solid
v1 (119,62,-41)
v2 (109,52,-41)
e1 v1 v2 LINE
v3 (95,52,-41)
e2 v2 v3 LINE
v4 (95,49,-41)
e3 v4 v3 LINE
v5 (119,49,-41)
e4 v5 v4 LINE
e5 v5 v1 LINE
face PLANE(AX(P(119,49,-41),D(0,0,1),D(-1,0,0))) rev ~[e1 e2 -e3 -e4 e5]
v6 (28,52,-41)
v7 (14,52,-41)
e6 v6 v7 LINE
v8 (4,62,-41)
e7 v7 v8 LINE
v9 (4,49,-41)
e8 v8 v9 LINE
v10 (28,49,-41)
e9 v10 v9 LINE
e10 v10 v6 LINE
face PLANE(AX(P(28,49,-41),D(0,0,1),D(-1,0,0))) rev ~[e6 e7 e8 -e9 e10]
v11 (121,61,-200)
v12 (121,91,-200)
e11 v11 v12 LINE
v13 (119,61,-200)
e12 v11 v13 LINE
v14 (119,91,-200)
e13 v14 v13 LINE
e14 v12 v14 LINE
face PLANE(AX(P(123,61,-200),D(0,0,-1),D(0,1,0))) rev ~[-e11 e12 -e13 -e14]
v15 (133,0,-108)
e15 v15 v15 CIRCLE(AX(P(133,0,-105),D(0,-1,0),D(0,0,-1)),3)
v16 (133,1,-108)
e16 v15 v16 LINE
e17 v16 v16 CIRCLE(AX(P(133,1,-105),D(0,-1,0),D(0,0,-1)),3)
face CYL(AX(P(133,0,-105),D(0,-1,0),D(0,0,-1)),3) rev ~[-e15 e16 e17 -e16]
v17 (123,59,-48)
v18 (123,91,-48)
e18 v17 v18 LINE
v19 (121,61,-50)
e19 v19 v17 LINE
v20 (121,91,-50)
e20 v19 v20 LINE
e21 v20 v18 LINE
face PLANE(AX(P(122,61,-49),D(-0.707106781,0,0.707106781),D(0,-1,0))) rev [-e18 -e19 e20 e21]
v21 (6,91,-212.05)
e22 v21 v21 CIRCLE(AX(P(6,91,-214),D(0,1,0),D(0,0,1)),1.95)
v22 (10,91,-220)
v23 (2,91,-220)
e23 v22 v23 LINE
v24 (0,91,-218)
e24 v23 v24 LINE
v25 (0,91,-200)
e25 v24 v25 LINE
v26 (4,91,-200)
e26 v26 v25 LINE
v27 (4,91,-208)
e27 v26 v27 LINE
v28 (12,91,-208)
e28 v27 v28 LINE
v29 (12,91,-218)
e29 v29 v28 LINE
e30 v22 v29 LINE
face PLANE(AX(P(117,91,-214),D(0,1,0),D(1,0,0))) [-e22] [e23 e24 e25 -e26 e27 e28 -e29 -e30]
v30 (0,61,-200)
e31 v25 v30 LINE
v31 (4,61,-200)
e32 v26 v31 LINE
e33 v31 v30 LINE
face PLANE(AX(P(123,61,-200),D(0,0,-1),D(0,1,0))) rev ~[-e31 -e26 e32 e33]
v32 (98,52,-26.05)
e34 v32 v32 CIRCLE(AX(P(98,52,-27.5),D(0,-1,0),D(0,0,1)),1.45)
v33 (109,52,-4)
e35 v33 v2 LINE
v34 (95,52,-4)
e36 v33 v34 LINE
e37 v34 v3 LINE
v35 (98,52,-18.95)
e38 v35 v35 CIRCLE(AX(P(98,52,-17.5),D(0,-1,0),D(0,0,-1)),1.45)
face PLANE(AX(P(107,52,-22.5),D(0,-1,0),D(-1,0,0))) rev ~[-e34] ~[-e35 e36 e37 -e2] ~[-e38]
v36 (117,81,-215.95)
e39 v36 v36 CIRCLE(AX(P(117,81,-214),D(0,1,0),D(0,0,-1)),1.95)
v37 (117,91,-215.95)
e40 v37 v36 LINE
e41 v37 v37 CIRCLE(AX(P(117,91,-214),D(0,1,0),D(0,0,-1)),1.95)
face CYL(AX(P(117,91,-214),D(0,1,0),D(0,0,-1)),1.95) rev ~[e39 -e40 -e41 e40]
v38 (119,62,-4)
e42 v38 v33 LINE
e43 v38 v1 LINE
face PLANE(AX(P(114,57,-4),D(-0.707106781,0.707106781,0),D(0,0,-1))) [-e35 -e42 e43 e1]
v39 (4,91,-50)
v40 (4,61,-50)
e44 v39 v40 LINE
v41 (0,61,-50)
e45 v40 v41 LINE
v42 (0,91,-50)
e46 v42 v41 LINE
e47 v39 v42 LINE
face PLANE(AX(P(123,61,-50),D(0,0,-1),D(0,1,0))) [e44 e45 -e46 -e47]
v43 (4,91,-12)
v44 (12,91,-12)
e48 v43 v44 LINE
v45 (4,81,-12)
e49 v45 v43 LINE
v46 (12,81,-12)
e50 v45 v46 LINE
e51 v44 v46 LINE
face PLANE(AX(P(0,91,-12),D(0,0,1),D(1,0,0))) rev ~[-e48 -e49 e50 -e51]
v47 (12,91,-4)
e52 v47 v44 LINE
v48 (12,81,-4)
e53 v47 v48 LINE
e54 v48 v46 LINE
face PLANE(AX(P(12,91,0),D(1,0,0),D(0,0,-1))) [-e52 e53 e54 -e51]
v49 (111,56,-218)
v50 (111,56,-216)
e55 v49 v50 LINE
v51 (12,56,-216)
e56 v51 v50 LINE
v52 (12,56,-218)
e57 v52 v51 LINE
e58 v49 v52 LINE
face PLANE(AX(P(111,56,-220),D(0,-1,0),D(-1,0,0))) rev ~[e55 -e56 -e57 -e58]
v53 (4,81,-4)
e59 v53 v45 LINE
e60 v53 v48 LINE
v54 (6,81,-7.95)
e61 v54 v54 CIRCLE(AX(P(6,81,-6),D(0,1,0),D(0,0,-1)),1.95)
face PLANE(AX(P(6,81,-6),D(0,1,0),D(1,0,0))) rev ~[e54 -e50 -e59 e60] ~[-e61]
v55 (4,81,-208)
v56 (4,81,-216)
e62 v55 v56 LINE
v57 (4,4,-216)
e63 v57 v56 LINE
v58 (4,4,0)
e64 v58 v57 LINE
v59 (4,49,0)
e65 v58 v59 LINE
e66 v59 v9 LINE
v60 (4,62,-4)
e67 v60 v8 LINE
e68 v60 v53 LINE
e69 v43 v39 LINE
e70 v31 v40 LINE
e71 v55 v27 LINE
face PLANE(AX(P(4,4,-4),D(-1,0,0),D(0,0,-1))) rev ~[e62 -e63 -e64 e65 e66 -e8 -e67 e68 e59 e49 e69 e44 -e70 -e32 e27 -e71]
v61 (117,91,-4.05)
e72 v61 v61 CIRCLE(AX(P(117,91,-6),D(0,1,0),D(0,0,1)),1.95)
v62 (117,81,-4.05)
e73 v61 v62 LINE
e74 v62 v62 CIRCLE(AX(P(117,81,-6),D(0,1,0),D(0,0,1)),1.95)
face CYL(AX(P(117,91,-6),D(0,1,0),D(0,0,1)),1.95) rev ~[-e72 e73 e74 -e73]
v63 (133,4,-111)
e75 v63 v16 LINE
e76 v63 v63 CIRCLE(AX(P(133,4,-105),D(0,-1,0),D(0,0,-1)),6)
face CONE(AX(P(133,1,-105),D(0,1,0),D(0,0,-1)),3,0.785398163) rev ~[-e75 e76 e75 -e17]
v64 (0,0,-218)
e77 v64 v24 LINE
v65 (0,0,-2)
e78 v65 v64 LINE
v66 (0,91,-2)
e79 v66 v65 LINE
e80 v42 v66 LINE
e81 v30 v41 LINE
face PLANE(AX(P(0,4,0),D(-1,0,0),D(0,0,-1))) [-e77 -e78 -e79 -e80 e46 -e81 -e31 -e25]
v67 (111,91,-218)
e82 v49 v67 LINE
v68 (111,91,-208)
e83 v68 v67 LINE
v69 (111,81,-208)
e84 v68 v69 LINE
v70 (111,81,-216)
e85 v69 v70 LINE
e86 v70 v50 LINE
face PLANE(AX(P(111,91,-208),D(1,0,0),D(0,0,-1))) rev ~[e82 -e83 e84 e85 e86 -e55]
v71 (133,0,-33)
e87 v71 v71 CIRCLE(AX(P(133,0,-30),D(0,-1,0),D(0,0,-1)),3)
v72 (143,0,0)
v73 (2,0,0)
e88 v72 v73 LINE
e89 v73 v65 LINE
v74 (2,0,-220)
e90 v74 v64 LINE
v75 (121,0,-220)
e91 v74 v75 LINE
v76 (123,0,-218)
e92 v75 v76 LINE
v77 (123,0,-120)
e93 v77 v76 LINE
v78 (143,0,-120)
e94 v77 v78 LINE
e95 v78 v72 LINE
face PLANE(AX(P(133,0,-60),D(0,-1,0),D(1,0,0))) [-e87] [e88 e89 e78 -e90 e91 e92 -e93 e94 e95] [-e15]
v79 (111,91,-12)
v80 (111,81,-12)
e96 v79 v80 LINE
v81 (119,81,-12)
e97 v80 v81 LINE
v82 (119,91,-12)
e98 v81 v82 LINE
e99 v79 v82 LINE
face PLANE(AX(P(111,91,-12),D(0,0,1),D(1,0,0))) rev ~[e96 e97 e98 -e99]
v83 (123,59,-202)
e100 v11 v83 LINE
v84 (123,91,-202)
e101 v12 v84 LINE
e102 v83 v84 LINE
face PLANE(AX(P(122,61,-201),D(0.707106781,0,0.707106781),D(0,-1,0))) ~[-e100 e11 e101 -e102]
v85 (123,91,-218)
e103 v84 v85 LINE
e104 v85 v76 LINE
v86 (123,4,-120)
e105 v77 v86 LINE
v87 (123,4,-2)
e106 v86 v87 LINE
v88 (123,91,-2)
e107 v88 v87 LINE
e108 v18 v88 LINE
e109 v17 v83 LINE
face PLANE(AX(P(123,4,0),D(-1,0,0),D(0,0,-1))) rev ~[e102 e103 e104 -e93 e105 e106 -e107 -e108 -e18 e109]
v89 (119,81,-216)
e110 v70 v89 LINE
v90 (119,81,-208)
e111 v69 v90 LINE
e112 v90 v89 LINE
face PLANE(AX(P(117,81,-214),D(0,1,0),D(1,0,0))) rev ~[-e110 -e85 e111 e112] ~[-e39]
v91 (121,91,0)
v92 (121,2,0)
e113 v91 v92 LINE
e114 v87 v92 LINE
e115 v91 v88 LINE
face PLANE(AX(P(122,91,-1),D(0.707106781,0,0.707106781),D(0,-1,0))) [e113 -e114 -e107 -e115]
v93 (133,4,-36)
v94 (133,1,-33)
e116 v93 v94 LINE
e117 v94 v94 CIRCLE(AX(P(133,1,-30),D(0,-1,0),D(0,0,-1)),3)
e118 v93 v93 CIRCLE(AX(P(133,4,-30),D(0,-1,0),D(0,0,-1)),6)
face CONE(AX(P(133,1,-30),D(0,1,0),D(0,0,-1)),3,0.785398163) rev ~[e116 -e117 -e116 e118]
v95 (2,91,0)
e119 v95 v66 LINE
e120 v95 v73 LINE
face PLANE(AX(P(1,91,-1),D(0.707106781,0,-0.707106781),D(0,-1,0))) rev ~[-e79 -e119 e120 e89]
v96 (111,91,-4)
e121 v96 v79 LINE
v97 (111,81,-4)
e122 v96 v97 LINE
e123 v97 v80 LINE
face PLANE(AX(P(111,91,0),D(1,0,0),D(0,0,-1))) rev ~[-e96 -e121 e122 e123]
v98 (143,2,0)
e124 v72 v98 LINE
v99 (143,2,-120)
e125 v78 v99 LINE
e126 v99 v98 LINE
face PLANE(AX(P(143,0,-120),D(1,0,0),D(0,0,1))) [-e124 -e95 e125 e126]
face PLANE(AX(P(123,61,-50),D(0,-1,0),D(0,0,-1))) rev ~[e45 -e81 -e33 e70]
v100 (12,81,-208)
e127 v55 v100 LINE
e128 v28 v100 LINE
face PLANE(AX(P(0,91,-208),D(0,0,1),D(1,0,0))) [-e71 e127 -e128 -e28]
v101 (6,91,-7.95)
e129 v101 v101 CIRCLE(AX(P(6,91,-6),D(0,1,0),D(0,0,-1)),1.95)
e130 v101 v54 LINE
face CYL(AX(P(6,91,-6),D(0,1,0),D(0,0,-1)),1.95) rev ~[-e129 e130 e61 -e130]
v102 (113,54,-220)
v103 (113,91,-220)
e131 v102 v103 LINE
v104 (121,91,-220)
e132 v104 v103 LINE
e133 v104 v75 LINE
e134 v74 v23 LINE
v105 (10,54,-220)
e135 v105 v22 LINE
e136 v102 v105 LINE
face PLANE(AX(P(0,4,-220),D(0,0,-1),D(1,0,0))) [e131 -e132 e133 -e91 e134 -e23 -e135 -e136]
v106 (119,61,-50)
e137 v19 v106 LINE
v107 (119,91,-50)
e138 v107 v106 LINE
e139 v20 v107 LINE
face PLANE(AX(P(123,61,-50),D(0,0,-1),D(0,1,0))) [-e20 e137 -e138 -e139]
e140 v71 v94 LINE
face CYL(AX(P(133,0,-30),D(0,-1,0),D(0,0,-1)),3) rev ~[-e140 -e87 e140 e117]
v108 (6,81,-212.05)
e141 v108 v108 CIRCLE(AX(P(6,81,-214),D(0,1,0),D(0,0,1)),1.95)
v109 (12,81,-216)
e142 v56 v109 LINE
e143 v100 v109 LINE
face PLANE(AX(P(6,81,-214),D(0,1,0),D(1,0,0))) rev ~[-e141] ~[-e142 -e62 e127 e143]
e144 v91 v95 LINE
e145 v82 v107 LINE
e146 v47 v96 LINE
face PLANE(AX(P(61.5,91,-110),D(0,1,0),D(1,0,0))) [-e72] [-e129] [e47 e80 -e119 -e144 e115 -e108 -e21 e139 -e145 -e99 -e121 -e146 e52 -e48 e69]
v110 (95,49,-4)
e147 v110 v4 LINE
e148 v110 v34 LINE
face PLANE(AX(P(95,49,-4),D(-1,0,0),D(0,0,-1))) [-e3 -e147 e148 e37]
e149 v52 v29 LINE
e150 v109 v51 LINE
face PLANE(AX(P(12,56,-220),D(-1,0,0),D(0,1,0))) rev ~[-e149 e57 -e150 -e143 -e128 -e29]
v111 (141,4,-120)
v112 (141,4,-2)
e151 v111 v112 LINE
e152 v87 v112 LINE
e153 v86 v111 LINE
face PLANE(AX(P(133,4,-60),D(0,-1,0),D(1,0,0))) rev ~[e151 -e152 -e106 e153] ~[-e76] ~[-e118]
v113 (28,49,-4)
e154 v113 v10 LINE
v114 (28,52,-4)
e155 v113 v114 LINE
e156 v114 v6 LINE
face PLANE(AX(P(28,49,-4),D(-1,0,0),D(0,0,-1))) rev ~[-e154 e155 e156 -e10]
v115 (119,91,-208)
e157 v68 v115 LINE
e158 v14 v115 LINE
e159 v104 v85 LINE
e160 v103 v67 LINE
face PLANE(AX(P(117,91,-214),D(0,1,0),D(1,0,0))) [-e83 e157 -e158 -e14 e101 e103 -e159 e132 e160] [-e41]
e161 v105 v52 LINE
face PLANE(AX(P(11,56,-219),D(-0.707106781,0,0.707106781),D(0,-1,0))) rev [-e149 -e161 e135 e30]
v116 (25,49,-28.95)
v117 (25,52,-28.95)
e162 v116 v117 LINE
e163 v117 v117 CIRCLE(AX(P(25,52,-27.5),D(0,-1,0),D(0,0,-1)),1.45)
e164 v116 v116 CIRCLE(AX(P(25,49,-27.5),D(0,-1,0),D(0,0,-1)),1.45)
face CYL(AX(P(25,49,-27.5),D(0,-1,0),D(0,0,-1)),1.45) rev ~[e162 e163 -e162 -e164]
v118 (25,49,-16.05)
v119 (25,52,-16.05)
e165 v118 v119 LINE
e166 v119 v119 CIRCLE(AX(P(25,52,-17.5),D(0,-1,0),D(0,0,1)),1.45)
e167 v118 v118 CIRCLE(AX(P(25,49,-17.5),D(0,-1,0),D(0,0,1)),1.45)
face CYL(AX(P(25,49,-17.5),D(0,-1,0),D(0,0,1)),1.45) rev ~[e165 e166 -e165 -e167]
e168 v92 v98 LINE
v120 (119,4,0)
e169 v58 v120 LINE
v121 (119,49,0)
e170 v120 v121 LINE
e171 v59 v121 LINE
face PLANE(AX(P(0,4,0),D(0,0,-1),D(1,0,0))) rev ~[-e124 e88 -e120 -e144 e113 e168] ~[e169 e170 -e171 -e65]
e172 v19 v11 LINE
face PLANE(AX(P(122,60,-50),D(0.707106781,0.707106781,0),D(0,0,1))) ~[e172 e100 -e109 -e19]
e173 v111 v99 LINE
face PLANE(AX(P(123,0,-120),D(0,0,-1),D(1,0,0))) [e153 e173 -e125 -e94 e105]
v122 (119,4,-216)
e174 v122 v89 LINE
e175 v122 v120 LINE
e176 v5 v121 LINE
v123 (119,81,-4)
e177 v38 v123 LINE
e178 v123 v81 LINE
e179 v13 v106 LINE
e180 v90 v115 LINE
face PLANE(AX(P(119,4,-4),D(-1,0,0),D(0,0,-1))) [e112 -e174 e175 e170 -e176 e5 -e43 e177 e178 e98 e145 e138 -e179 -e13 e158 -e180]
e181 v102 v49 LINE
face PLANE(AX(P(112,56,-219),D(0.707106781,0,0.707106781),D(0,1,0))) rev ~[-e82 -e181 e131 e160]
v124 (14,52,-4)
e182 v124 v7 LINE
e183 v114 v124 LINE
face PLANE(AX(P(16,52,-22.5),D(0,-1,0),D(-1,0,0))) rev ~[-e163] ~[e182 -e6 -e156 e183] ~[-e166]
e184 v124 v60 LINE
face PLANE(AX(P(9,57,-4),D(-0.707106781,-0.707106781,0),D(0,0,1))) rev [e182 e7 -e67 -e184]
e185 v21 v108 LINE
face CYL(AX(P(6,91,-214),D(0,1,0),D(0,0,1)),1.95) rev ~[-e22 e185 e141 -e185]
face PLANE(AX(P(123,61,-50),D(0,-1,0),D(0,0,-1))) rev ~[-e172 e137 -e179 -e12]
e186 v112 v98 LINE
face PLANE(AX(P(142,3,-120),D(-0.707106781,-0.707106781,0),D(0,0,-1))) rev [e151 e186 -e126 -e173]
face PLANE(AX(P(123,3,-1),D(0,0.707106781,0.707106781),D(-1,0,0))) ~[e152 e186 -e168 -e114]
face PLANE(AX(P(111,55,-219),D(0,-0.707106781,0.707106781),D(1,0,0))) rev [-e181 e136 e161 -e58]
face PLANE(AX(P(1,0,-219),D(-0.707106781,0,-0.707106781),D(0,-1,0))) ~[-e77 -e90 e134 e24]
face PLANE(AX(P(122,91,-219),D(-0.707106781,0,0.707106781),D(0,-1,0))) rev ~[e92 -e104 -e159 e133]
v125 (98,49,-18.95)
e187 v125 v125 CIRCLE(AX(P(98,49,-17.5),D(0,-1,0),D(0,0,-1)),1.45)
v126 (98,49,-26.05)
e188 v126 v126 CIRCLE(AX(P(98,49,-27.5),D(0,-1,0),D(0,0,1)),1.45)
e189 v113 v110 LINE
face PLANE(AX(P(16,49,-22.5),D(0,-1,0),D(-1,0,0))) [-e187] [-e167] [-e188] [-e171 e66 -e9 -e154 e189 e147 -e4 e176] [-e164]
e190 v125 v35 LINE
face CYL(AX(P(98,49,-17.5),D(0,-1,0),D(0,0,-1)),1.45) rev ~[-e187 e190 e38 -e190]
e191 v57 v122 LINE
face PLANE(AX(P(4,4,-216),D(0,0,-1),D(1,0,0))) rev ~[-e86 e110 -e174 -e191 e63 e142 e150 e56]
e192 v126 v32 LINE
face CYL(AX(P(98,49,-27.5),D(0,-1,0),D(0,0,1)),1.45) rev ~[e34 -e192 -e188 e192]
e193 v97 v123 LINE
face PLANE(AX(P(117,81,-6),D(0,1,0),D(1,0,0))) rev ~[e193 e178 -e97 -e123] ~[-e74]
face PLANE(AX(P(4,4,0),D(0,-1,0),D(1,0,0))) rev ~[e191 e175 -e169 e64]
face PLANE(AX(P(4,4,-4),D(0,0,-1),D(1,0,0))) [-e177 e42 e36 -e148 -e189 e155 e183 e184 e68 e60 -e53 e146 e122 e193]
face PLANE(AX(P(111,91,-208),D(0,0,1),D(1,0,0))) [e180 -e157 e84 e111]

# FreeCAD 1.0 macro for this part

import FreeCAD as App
import Part
import Sketcher

V = App.Vector
Q = App.Units.Quantity


def edges_at(feature, points):
    """Names of the edges that pass closest to the given points."""
    edges = feature.Shape.Edges
    near = lambda p: min(range(len(edges)), key=lambda i: edges[i].distToShape(Part.Vertex(*p))[0])
    return sorted({f"Edge{near(p) + 1}" for p in points})

doc = App.newDocument("Part")
body = doc.addObject("PartDesign::Body", "Body")

# Sketch on XZ plane
sketch1 = doc.addObject("Sketcher::SketchObject", "Sketch")
body.addObject(sketch1)
sketch1.AttachmentSupport = (doc.XZ_Plane, [""])
sketch1.MapMode = "FlatFace"
sketch1.addGeometry([
    Part.LineSegment(V(0, -220, 0), V(0, 0, 0)),
    Part.LineSegment(V(0, 0, 0), V(123, 0, 0)),
    Part.LineSegment(V(123, 0, 0), V(123, -220, 0)),
    Part.LineSegment(V(123, -220, 0), V(0, -220, 0)),
], False)
sketch1.addConstraint([
    Sketcher.Constraint("Coincident", 0, 2, 1, 1),
    Sketcher.Constraint("Coincident", 1, 2, 2, 1),
    Sketcher.Constraint("Coincident", 2, 2, 3, 1),
    Sketcher.Constraint("Coincident", 3, 2, 0, 1),
    Sketcher.Constraint("Vertical", 0),
    Sketcher.Constraint("Horizontal", 1),
    Sketcher.Constraint("Vertical", 2),
    Sketcher.Constraint("Horizontal", 3),
    Sketcher.Constraint("Coincident", 0, 2, -1, 1),
    Sketcher.Constraint("DistanceX", 1, 1, 1, 2, Q("123 mm")),
    Sketcher.Constraint("DistanceY", 0, 1, 0, 2, Q("220 mm")),
])
pad1 = doc.addObject("PartDesign::Pad", "Pad")
body.addObject(pad1)
pad1.Profile = sketch1
pad1.Length = 4
pad1.Reversed = True

# Sketch on XZ plane
sketch2 = doc.addObject("Sketcher::SketchObject", "Sketch001")
body.addObject(sketch2)
sketch2.AttachmentSupport = (doc.XZ_Plane, [""])
sketch2.MapMode = "FlatFace"
sketch2.AttachmentOffset = App.Placement(V(0, 0, -4), App.Rotation())
sketch2.addGeometry([
    Part.LineSegment(V(0, -220, 0), V(0, 0, 0)),  # 0
    Part.LineSegment(V(0, 0, 0), V(123, 0, 0)),  # 1
    Part.LineSegment(V(123, 0, 0), V(123, -220, 0)),  # 2
    Part.LineSegment(V(123, -220, 0), V(0, -220, 0)),  # 3
    Part.LineSegment(V(119, -4, 0), V(4, -4, 0)),  # 4
    Part.LineSegment(V(4, -4, 0), V(4, -216, 0)),  # 5
    Part.LineSegment(V(4, -216, 0), V(119, -216, 0)),  # 6
    Part.LineSegment(V(119, -216, 0), V(119, -4, 0)),  # 7
], False)
sketch2.addConstraint([
    Sketcher.Constraint("Coincident", 0, 2, 1, 1),
    Sketcher.Constraint("Coincident", 1, 2, 2, 1),
    Sketcher.Constraint("Coincident", 2, 2, 3, 1),
    Sketcher.Constraint("Coincident", 3, 2, 0, 1),
    Sketcher.Constraint("Coincident", 4, 2, 5, 1),
    Sketcher.Constraint("Coincident", 5, 2, 6, 1),
    Sketcher.Constraint("Coincident", 6, 2, 7, 1),
    Sketcher.Constraint("Coincident", 7, 2, 4, 1),
    Sketcher.Constraint("Vertical", 0),
    Sketcher.Constraint("Horizontal", 1),
    Sketcher.Constraint("Vertical", 2),
    Sketcher.Constraint("Horizontal", 3),
    Sketcher.Constraint("Horizontal", 4),
    Sketcher.Constraint("Vertical", 5),
    Sketcher.Constraint("Horizontal", 6),
    Sketcher.Constraint("Vertical", 7),
    Sketcher.Constraint("Coincident", 0, 2, -1, 1),
    Sketcher.Constraint("DistanceX", 1, 1, 1, 2, Q("123 mm")),
    Sketcher.Constraint("DistanceX", 4, 2, 4, 1, Q("115 mm")),
    Sketcher.Constraint("DistanceY", 0, 1, 0, 2, Q("220 mm")),
    Sketcher.Constraint("DistanceY", 5, 2, 5, 1, Q("212 mm")),
    Sketcher.Constraint("DistanceX", -1, 1, 4, 2, Q("4 mm")),
    Sketcher.Constraint("DistanceY", 4, 2, -1, 1, Q("4 mm")),
])
pad2 = doc.addObject("PartDesign::Pad", "Pad001")
body.addObject(pad2)
pad2.Profile = sketch2
pad2.Length = 87
pad2.Reversed = True

# Sketch on XY plane
sketch3 = doc.addObject("Sketcher::SketchObject", "Sketch002")
body.addObject(sketch3)
sketch3.AttachmentSupport = (doc.XY_Plane, [""])
sketch3.MapMode = "FlatFace"
sketch3.addGeometry([
    Part.LineSegment(V(4, 49, 0), V(4, 4, 0)),
    Part.LineSegment(V(4, 4, 0), V(119, 4, 0)),
    Part.LineSegment(V(119, 4, 0), V(119, 49, 0)),
    Part.LineSegment(V(119, 49, 0), V(4, 49, 0)),
], False)
sketch3.addConstraint([
    Sketcher.Constraint("Coincident", 0, 2, 1, 1),
    Sketcher.Constraint("Coincident", 1, 2, 2, 1),
    Sketcher.Constraint("Coincident", 2, 2, 3, 1),
    Sketcher.Constraint("Coincident", 3, 2, 0, 1),
    Sketcher.Constraint("Vertical", 0),
    Sketcher.Constraint("Horizontal", 1),
    Sketcher.Constraint("Vertical", 2),
    Sketcher.Constraint("Horizontal", 3),
    Sketcher.Constraint("DistanceX", 1, 1, 1, 2, Q("115 mm")),
    Sketcher.Constraint("DistanceY", 0, 2, 0, 1, Q("45 mm")),
    Sketcher.Constraint("DistanceX", -1, 1, 0, 2, Q("4 mm")),
    Sketcher.Constraint("DistanceY", -1, 1, 0, 2, Q("4 mm")),
])
pocket1 = doc.addObject("PartDesign::Pocket", "Pocket")
body.addObject(pocket1)
pocket1.Profile = sketch3
pocket1.Type = "UpToFirst"

# Sketch on YZ plane
sketch4 = doc.addObject("Sketcher::SketchObject", "Sketch003")
body.addObject(sketch4)
sketch4.AttachmentSupport = (doc.YZ_Plane, [""])
sketch4.MapMode = "FlatFace"
sketch4.AttachmentOffset = App.Placement(V(0, 0, 123), App.Rotation())
sketch4.addGeometry([
    Part.LineSegment(V(91, -50, 0), V(61, -50, 0)),
    Part.LineSegment(V(61, -50, 0), V(61, -200, 0)),
    Part.LineSegment(V(61, -200, 0), V(91, -200, 0)),
    Part.LineSegment(V(91, -200, 0), V(91, -50, 0)),
], False)
sketch4.addConstraint([
    Sketcher.Constraint("Coincident", 0, 2, 1, 1),
    Sketcher.Constraint("Coincident", 1, 2, 2, 1),
    Sketcher.Constraint("Coincident", 2, 2, 3, 1),
    Sketcher.Constraint("Coincident", 3, 2, 0, 1),
    Sketcher.Constraint("Horizontal", 0),
    Sketcher.Constraint("Vertical", 1),
    Sketcher.Constraint("Horizontal", 2),
    Sketcher.Constraint("Vertical", 3),
    Sketcher.Constraint("DistanceX", 0, 2, 0, 1, Q("30 mm")),
    Sketcher.Constraint("DistanceY", 1, 2, 1, 1, Q("150 mm")),
    Sketcher.Constraint("DistanceX", -1, 1, 0, 2, Q("61 mm")),
    Sketcher.Constraint("DistanceY", 0, 2, -1, 1, Q("50 mm")),
])
pocket2 = doc.addObject("PartDesign::Pocket", "Pocket001")
body.addObject(pocket2)
pocket2.Profile = sketch4
pocket2.Type = "ThroughAll"

# Sketch on XZ plane
sketch5 = doc.addObject("Sketcher::SketchObject", "Sketch004")
body.addObject(sketch5)
sketch5.AttachmentSupport = (doc.XZ_Plane, [""])
sketch5.MapMode = "FlatFace"
sketch5.AttachmentOffset = App.Placement(V(0, 0, -49), App.Rotation())
sketch5.addGeometry([
    Part.LineSegment(V(28, -41, 0), V(28, -4, 0)),  # 0
    Part.LineSegment(V(28, -4, 0), V(4, -4, 0)),  # 1
    Part.LineSegment(V(4, -4, 0), V(4, -41, 0)),  # 2
    Part.LineSegment(V(4, -41, 0), V(28, -41, 0)),  # 3
    Part.Circle(V(25, -17.5, 0), V(0, 0, 1), 1.4),  # 4
    Part.Circle(V(25, -27.5, 0), V(0, 0, 1), 1.4),  # 5
    Part.LineSegment(V(119, -41, 0), V(119, -4, 0)),  # 6
    Part.LineSegment(V(119, -4, 0), V(95, -4, 0)),  # 7
    Part.LineSegment(V(95, -4, 0), V(95, -41, 0)),  # 8
    Part.LineSegment(V(95, -41, 0), V(119, -41, 0)),  # 9
    Part.Circle(V(98, -17.5, 0), V(0, 0, 1), 1.4),  # 10
    Part.Circle(V(98, -27.5, 0), V(0, 0, 1), 1.4),  # 11
], False)
sketch5.addConstraint([
    Sketcher.Constraint("Coincident", 0, 2, 1, 1),
    Sketcher.Constraint("Coincident", 1, 2, 2, 1),
    Sketcher.Constraint("Coincident", 2, 2, 3, 1),
    Sketcher.Constraint("Coincident", 3, 2, 0, 1),
    Sketcher.Constraint("Coincident", 6, 2, 7, 1),
    Sketcher.Constraint("Coincident", 7, 2, 8, 1),
    Sketcher.Constraint("Coincident", 8, 2, 9, 1),
    Sketcher.Constraint("Coincident", 9, 2, 6, 1),
    Sketcher.Constraint("Vertical", 0),
    Sketcher.Constraint("Horizontal", 1),
    Sketcher.Constraint("Vertical", 2),
    Sketcher.Constraint("Horizontal", 3),
    Sketcher.Constraint("Vertical", 6),
    Sketcher.Constraint("Horizontal", 7),
    Sketcher.Constraint("Vertical", 8),
    Sketcher.Constraint("Horizontal", 9),
    Sketcher.Constraint("Equal", 4, 5),
    Sketcher.Constraint("Equal", 5, 10),
    Sketcher.Constraint("Equal", 10, 11),
    Sketcher.Constraint("Horizontal", 4, 3, 10, 3),
    Sketcher.Constraint("Horizontal", 5, 3, 11, 3),
    Sketcher.Constraint("Horizontal", 1, 2, 6, 2),
    Sketcher.Constraint("Horizontal", 3, 2, 8, 2),
    Sketcher.Constraint("Vertical", 4, 3, 5, 3),
    Sketcher.Constraint("Vertical", 10, 3, 11, 3),
    Sketcher.Constraint("Equal", 3, 7),
    Sketcher.Constraint("Diameter", 4, Q("2.9 mm")),
    Sketcher.Constraint("DistanceX", 1, 2, 1, 1, Q("24 mm")),
    Sketcher.Constraint("DistanceY", 0, 1, 0, 2, Q("37 mm")),
    Sketcher.Constraint("DistanceX", -1, 1, 4, 3, Q("25 mm")),
    Sketcher.Constraint("DistanceX", -1, 1, 10, 3, Q("98 mm")),
    Sketcher.Constraint("DistanceX", -1, 1, 0, 2, Q("28 mm")),
    Sketcher.Constraint("DistanceY", 0, 2, -1, 1, Q("4 mm")),
    Sketcher.Constraint("DistanceX", -1, 1, 6, 2, Q("119 mm")),
    Sketcher.Constraint("DistanceY", 5, 3, 4, 3, Q("10 mm")),
    Sketcher.Constraint("DistanceY", 4, 3, -1, 1, Q("17.5 mm")),
])
pad3 = doc.addObject("PartDesign::Pad", "Pad002")
body.addObject(pad3)
pad3.Profile = sketch5
pad3.Length = 3
pad3.Reversed = True

# Sketch on XZ plane
sketch6 = doc.addObject("Sketcher::SketchObject", "Sketch005")
body.addObject(sketch6)
sketch6.AttachmentSupport = (doc.XZ_Plane, [""])
sketch6.MapMode = "FlatFace"
sketch6.AttachmentOffset = App.Placement(V(0, 0, -91), App.Rotation())
sketch6.addGeometry([
    Part.LineSegment(V(111, -220, 0), V(111, -208, 0)),  # 0
    Part.LineSegment(V(111, -208, 0), V(123, -208, 0)),  # 1
    Part.LineSegment(V(123, -208, 0), V(123, -220, 0)),  # 2
    Part.LineSegment(V(123, -220, 0), V(111, -220, 0)),  # 3
    Part.LineSegment(V(0, -220, 0), V(0, -208, 0)),  # 4
    Part.LineSegment(V(0, -208, 0), V(12, -208, 0)),  # 5
    Part.LineSegment(V(12, -208, 0), V(12, -220, 0)),  # 6
    Part.LineSegment(V(12, -220, 0), V(0, -220, 0)),  # 7
    Part.LineSegment(V(111, -12, 0), V(111, 0, 0)),  # 8
    Part.LineSegment(V(111, 0, 0), V(123, 0, 0)),  # 9
    Part.LineSegment(V(123, 0, 0), V(123, -12, 0)),  # 10
    Part.LineSegment(V(123, -12, 0), V(111, -12, 0)),  # 11
    Part.LineSegment(V(0, -12, 0), V(0, 0, 0)),  # 12
    Part.LineSegment(V(0, 0, 0), V(12, 0, 0)),  # 13
    Part.LineSegment(V(12, 0, 0), V(12, -12, 0)),  # 14
    Part.LineSegment(V(12, -12, 0), V(0, -12, 0)),  # 15
], False)
sketch6.addConstraint([
    Sketcher.Constraint("Coincident", 0, 2, 1, 1),
    Sketcher.Constraint("Coincident", 1, 2, 2, 1),
    Sketcher.Constraint("Coincident", 2, 2, 3, 1),
    Sketcher.Constraint("Coincident", 3, 2, 0, 1),
    Sketcher.Constraint("Coincident", 4, 2, 5, 1),
    Sketcher.Constraint("Coincident", 5, 2, 6, 1),
    Sketcher.Constraint("Coincident", 6, 2, 7, 1),
    Sketcher.Constraint("Coincident", 7, 2, 4, 1),
    Sketcher.Constraint("Coincident", 8, 2, 9, 1),
    Sketcher.Constraint("Coincident", 9, 2, 10, 1),
    Sketcher.Constraint("Coincident", 10, 2, 11, 1),
    Sketcher.Constraint("Coincident", 11, 2, 8, 1),
    Sketcher.Constraint("Coincident", 12, 2, 13, 1),
    Sketcher.Constraint("Coincident", 13, 2, 14, 1),
    Sketcher.Constraint("Coincident", 14, 2, 15, 1),
    Sketcher.Constraint("Coincident", 15, 2, 12, 1),
    Sketcher.Constraint("Vertical", 0),
    Sketcher.Constraint("Horizontal", 1),
    Sketcher.Constraint("Vertical", 2),
    Sketcher.Constraint("Horizontal", 3),
    Sketcher.Constraint("Vertical", 4),
    Sketcher.Constraint("Horizontal", 5),
    Sketcher.Constraint("Vertical", 6),
    Sketcher.Constraint("Horizontal", 7),
    Sketcher.Constraint("Vertical", 8),
    Sketcher.Constraint("Horizontal", 9),
    Sketcher.Constraint("Vertical", 10),
    Sketcher.Constraint("Horizontal", 11),
    Sketcher.Constraint("Vertical", 12),
    Sketcher.Constraint("Horizontal", 13),
    Sketcher.Constraint("Vertical", 14),
    Sketcher.Constraint("Horizontal", 15),
    Sketcher.Constraint("Coincident", 12, 2, -1, 1),
    Sketcher.Constraint("PointOnObject", 4, 2, -2),
    Sketcher.Constraint("PointOnObject", 8, 2, -1),
    Sketcher.Constraint("Horizontal", 1, 2, 4, 2),
    Sketcher.Constraint("Horizontal", 3, 2, 6, 2),
    Sketcher.Constraint("Horizontal", 11, 2, 14, 2),
    Sketcher.Constraint("Vertical", 3, 2, 8, 2),
    Sketcher.Constraint("Vertical", 2, 2, 9, 2),
    Sketcher.Constraint("Vertical", 6, 2, 13, 2),
    Sketcher.Constraint("Equal", 3, 5),
    Sketcher.Constraint("Equal", 15, 0),
    Sketcher.Constraint("Equal", 6, 8),
    Sketcher.Constraint("DistanceX", 1, 1, 1, 2, Q("12 mm")),
    Sketcher.Constraint("DistanceX", -1, 1, 0, 2, Q("111 mm")),
    Sketcher.Constraint("DistanceY", 0, 2, -1, 1, Q("208 mm")),
])
pad4 = doc.addObject("PartDesign::Pad", "Pad003")
body.addObject(pad4)
pad4.Profile = sketch6
pad4.Length = 10

# Sketch on XZ plane
sketch7 = doc.addObject("Sketcher::SketchObject", "Sketch006")
body.addObject(sketch7)
sketch7.AttachmentSupport = (doc.XZ_Plane, [""])
sketch7.MapMode = "FlatFace"
sketch7.AttachmentOffset = App.Placement(V(0, 0, -91), App.Rotation())
sketch7.addGeometry(Part.Circle(V(6, -214, 0), V(0, 0, 1), 1.9), False)
sketch7.addConstraint([
    Sketcher.Constraint("Diameter", 0, Q("3.9 mm")),
    Sketcher.Constraint("DistanceX", -1, 1, 0, 3, Q("6 mm")),
    Sketcher.Constraint("DistanceY", 0, 3, -1, 1, Q("214 mm")),
])
pocket3 = doc.addObject("PartDesign::Pocket", "Pocket002")
body.addObject(pocket3)
pocket3.Profile = sketch7
pocket3.Type = "UpToFirst"
pocket3.Reversed = True

# Sketch on XZ plane
sketch8 = doc.addObject("Sketcher::SketchObject", "Sketch007")
body.addObject(sketch8)
sketch8.AttachmentSupport = (doc.XZ_Plane, [""])
sketch8.MapMode = "FlatFace"
sketch8.AttachmentOffset = App.Placement(V(0, 0, -91), App.Rotation())
sketch8.addGeometry(Part.Circle(V(117, -214, 0), V(0, 0, 1), 1.9), False)
sketch8.addConstraint([
    Sketcher.Constraint("Diameter", 0, Q("3.9 mm")),
    Sketcher.Constraint("DistanceX", -1, 1, 0, 3, Q("117 mm")),
    Sketcher.Constraint("DistanceY", 0, 3, -1, 1, Q("214 mm")),
])
pocket4 = doc.addObject("PartDesign::Pocket", "Pocket003")
body.addObject(pocket4)
pocket4.Profile = sketch8
pocket4.Type = "UpToFirst"
pocket4.Reversed = True

# Sketch on XZ plane
sketch9 = doc.addObject("Sketcher::SketchObject", "Sketch008")
body.addObject(sketch9)
sketch9.AttachmentSupport = (doc.XZ_Plane, [""])
sketch9.MapMode = "FlatFace"
sketch9.AttachmentOffset = App.Placement(V(0, 0, -91), App.Rotation())
sketch9.addGeometry(Part.Circle(V(117, -6, 0), V(0, 0, 1), 1.9), False)
sketch9.addConstraint([
    Sketcher.Constraint("Diameter", 0, Q("3.9 mm")),
    Sketcher.Constraint("DistanceX", -1, 1, 0, 3, Q("117 mm")),
    Sketcher.Constraint("DistanceY", 0, 3, -1, 1, Q("6 mm")),
])
pocket5 = doc.addObject("PartDesign::Pocket", "Pocket004")
body.addObject(pocket5)
pocket5.Profile = sketch9
pocket5.Type = "UpToFirst"
pocket5.Reversed = True

# Sketch on XZ plane
sketch10 = doc.addObject("Sketcher::SketchObject", "Sketch009")
body.addObject(sketch10)
sketch10.AttachmentSupport = (doc.XZ_Plane, [""])
sketch10.MapMode = "FlatFace"
sketch10.AttachmentOffset = App.Placement(V(0, 0, -91), App.Rotation())
sketch10.addGeometry(Part.Circle(V(6, -6, 0), V(0, 0, 1), 1.9), False)
sketch10.addConstraint([
    Sketcher.Constraint("Diameter", 0, Q("3.9 mm")),
    Sketcher.Constraint("DistanceX", -1, 1, 0, 3, Q("6 mm")),
    Sketcher.Constraint("DistanceY", 0, 3, -1, 1, Q("6 mm")),
])
pocket6 = doc.addObject("PartDesign::Pocket", "Pocket005")
body.addObject(pocket6)
pocket6.Profile = sketch10
pocket6.Type = "UpToFirst"
pocket6.Reversed = True

# Sketch on XY plane
sketch11 = doc.addObject("Sketcher::SketchObject", "Sketch010")
body.addObject(sketch11)
sketch11.AttachmentSupport = (doc.XY_Plane, [""])
sketch11.MapMode = "FlatFace"
sketch11.AttachmentOffset = App.Placement(V(0, 0, -220), App.Rotation())
sketch11.addGeometry([
    Part.LineSegment(V(111, 91, 0), V(111, 56, 0)),
    Part.LineSegment(V(111, 56, 0), V(12, 56, 0)),
    Part.LineSegment(V(12, 56, 0), V(12, 91, 0)),
    Part.LineSegment(V(12, 91, 0), V(111, 91, 0)),
], False)
sketch11.addConstraint([
    Sketcher.Constraint("Coincident", 0, 2, 1, 1),
    Sketcher.Constraint("Coincident", 1, 2, 2, 1),
    Sketcher.Constraint("Coincident", 2, 2, 3, 1),
    Sketcher.Constraint("Coincident", 3, 2, 0, 1),
    Sketcher.Constraint("Vertical", 0),
    Sketcher.Constraint("Horizontal", 1),
    Sketcher.Constraint("Vertical", 2),
    Sketcher.Constraint("Horizontal", 3),
    Sketcher.Constraint("DistanceX", 1, 2, 1, 1, Q("99 mm")),
    Sketcher.Constraint("DistanceY", 0, 2, 0, 1, Q("35 mm")),
    Sketcher.Constraint("DistanceX", -1, 1, 0, 2, Q("111 mm")),
    Sketcher.Constraint("DistanceY", -1, 1, 0, 2, Q("56 mm")),
])
pocket7 = doc.addObject("PartDesign::Pocket", "Pocket006")
body.addObject(pocket7)
pocket7.Profile = sketch11
pocket7.Type = "UpToFirst"
pocket7.Reversed = True
doc.recompute()

chamfer = doc.addObject("PartDesign::Chamfer", "Chamfer")
body.addObject(chamfer)
chamfer.Base = (pocket7, edges_at(pocket7, [(119, 52, -22.5), (4, 52, -22.5)]))
chamfer.Size = 10

# Sketch on XZ plane
sketch12 = doc.addObject("Sketcher::SketchObject", "Sketch011")
body.addObject(sketch12)
sketch12.AttachmentSupport = (doc.XZ_Plane, [""])
sketch12.MapMode = "FlatFace"
sketch12.addGeometry([
    Part.LineSegment(V(123, 0, 0), V(123, -120, 0)),  # 0
    Part.LineSegment(V(123, -120, 0), V(143, -120, 0)),  # 1
    Part.LineSegment(V(143, -120, 0), V(143, 0, 0)),  # 2
    Part.LineSegment(V(143, 0, 0), V(123, 0, 0)),  # 3
    Part.Circle(V(133, -105, 0), V(0, 0, 1), 3),  # 4
    Part.Circle(V(133, -30, 0), V(0, 0, 1), 3),  # 5
], False)
sketch12.addConstraint([
    Sketcher.Constraint("Coincident", 0, 2, 1, 1),
    Sketcher.Constraint("Coincident", 1, 2, 2, 1),
    Sketcher.Constraint("Coincident", 2, 2, 3, 1),
    Sketcher.Constraint("Coincident", 3, 2, 0, 1),
    Sketcher.Constraint("Vertical", 0),
    Sketcher.Constraint("Horizontal", 1),
    Sketcher.Constraint("Vertical", 2),
    Sketcher.Constraint("Horizontal", 3),
    Sketcher.Constraint("Equal", 4, 5),
    Sketcher.Constraint("PointOnObject", 2, 2, -1),
    Sketcher.Constraint("Vertical", 4, 3, 5, 3),
    Sketcher.Constraint("Diameter", 4, Q("6 mm")),
    Sketcher.Constraint("DistanceX", 1, 1, 1, 2, Q("20 mm")),
    Sketcher.Constraint("DistanceY", 0, 2, 0, 1, Q("120 mm")),
    Sketcher.Constraint("DistanceX", -1, 1, 4, 3, Q("133 mm")),
    Sketcher.Constraint("DistanceY", 4, 3, -1, 1, Q("105 mm")),
    Sketcher.Constraint("DistanceY", 5, 3, -1, 1, Q("30 mm")),
    Sketcher.Constraint("DistanceX", -1, 1, 0, 2, Q("123 mm")),
])
pad5 = doc.addObject("PartDesign::Pad", "Pad004")
body.addObject(pad5)
pad5.Profile = sketch12
pad5.Length = 4
pad5.Reversed = True
doc.recompute()

chamfer2 = doc.addObject("PartDesign::Chamfer", "Chamfer001")
body.addObject(chamfer2)
chamfer2.Base = (pad5, edges_at(pad5, [
    (111, 73.5, -220),
    (61.5, 56, -220),
    (12, 73.5, -220),
    (133, 4, 0),
    (143, 4, -60),
    (123, 76, -50),
    (123, 61, -125),
    (123, 76, -200),
    (0, 45.5, -220),
    (123, 45.5, -220),
    (123, 47.5, 0),
    (0, 45.5, 0),
]))
chamfer2.Size = 2
doc.recompute()

chamfer3 = doc.addObject("PartDesign::Chamfer", "Chamfer002")
body.addObject(chamfer3)
chamfer3.Base = (chamfer2, edges_at(chamfer2, [(133, 4, -102), (133, 4, -27)]))
chamfer3.Size = 3

doc.recompute()
